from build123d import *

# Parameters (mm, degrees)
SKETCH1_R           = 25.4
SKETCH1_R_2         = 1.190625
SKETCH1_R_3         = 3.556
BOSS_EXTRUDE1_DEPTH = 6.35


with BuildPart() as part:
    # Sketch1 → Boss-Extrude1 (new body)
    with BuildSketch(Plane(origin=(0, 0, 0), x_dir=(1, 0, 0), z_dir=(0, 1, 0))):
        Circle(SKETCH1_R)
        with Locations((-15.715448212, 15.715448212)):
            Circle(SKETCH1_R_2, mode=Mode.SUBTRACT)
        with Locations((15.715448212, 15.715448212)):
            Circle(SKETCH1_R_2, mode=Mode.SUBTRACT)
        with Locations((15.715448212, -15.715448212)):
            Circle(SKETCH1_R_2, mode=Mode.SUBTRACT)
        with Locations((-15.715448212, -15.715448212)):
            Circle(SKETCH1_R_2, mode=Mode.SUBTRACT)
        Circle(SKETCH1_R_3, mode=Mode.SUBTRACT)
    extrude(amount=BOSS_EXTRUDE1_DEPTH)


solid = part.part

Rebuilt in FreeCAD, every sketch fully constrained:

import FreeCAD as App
import Part
import Sketcher
from FreeCAD import Vector
Q = App.Units.Quantity

doc = App.newDocument("Part")
body = doc.addObject("PartDesign::Body", "Body")

# Sketch on XZ plane
sketch1 = body.newObject("Sketcher::SketchObject", "Sketch")
sketch1.AttachmentSupport = (doc.getObject("XZ_Plane"), [""])
sketch1.MapMode = "FlatFace"
sketch1.addGeometry([
    Part.Circle(Vector(0, 0, 0), Vector(0, 0, 1), 25.4),  # 0
    Part.Circle(Vector(-15.7, 15.7, 0), Vector(0, 0, 1), 1.2),  # 1
    Part.Circle(Vector(15.7, 15.7, 0), Vector(0, 0, 1), 1.2),  # 2
    Part.Circle(Vector(0, 0, 0), Vector(0, 0, 1), 3.6),  # 3
    Part.Circle(Vector(-15.7, -15.7, 0), Vector(0, 0, 1), 1.2),  # 4
    Part.Circle(Vector(15.7, -15.7, 0), Vector(0, 0, 1), 1.2),  # 5
], False)
sketch1.addConstraint([
    Sketcher.Constraint("Coincident", 0, 3, -1, 1),
    Sketcher.Constraint("Coincident", 3, 3, -1, 1),
    Sketcher.Constraint("Equal", 1, 2),
    Sketcher.Constraint("Equal", 2, 4),
    Sketcher.Constraint("Equal", 4, 5),
    Sketcher.Constraint("Symmetric", 2, 3, 4, 3, -1, 1),
    Sketcher.Constraint("Symmetric", 1, 3, 5, 3, -1, 1),
    Sketcher.Constraint("Symmetric", 1, 3, 2, 3, -2),
    Sketcher.Constraint("Diameter", 0, Q("2 in")),
    Sketcher.Constraint("Diameter", 3, Q("0.28 in")),
    Sketcher.Constraint("Diameter", 1, Q("0.09375 in")),
    Sketcher.Constraint("DistanceX", 1, 3, -1, 1, 15.715448),
    Sketcher.Constraint("DistanceY", -1, 1, 1, 3, 15.715448),
])
pad1 = body.newObject("PartDesign::Pad", "Pad")
pad1.Profile = sketch1
pad1.Length = Q("0.25 in")
pad1.Reversed = True

doc.recompute()
